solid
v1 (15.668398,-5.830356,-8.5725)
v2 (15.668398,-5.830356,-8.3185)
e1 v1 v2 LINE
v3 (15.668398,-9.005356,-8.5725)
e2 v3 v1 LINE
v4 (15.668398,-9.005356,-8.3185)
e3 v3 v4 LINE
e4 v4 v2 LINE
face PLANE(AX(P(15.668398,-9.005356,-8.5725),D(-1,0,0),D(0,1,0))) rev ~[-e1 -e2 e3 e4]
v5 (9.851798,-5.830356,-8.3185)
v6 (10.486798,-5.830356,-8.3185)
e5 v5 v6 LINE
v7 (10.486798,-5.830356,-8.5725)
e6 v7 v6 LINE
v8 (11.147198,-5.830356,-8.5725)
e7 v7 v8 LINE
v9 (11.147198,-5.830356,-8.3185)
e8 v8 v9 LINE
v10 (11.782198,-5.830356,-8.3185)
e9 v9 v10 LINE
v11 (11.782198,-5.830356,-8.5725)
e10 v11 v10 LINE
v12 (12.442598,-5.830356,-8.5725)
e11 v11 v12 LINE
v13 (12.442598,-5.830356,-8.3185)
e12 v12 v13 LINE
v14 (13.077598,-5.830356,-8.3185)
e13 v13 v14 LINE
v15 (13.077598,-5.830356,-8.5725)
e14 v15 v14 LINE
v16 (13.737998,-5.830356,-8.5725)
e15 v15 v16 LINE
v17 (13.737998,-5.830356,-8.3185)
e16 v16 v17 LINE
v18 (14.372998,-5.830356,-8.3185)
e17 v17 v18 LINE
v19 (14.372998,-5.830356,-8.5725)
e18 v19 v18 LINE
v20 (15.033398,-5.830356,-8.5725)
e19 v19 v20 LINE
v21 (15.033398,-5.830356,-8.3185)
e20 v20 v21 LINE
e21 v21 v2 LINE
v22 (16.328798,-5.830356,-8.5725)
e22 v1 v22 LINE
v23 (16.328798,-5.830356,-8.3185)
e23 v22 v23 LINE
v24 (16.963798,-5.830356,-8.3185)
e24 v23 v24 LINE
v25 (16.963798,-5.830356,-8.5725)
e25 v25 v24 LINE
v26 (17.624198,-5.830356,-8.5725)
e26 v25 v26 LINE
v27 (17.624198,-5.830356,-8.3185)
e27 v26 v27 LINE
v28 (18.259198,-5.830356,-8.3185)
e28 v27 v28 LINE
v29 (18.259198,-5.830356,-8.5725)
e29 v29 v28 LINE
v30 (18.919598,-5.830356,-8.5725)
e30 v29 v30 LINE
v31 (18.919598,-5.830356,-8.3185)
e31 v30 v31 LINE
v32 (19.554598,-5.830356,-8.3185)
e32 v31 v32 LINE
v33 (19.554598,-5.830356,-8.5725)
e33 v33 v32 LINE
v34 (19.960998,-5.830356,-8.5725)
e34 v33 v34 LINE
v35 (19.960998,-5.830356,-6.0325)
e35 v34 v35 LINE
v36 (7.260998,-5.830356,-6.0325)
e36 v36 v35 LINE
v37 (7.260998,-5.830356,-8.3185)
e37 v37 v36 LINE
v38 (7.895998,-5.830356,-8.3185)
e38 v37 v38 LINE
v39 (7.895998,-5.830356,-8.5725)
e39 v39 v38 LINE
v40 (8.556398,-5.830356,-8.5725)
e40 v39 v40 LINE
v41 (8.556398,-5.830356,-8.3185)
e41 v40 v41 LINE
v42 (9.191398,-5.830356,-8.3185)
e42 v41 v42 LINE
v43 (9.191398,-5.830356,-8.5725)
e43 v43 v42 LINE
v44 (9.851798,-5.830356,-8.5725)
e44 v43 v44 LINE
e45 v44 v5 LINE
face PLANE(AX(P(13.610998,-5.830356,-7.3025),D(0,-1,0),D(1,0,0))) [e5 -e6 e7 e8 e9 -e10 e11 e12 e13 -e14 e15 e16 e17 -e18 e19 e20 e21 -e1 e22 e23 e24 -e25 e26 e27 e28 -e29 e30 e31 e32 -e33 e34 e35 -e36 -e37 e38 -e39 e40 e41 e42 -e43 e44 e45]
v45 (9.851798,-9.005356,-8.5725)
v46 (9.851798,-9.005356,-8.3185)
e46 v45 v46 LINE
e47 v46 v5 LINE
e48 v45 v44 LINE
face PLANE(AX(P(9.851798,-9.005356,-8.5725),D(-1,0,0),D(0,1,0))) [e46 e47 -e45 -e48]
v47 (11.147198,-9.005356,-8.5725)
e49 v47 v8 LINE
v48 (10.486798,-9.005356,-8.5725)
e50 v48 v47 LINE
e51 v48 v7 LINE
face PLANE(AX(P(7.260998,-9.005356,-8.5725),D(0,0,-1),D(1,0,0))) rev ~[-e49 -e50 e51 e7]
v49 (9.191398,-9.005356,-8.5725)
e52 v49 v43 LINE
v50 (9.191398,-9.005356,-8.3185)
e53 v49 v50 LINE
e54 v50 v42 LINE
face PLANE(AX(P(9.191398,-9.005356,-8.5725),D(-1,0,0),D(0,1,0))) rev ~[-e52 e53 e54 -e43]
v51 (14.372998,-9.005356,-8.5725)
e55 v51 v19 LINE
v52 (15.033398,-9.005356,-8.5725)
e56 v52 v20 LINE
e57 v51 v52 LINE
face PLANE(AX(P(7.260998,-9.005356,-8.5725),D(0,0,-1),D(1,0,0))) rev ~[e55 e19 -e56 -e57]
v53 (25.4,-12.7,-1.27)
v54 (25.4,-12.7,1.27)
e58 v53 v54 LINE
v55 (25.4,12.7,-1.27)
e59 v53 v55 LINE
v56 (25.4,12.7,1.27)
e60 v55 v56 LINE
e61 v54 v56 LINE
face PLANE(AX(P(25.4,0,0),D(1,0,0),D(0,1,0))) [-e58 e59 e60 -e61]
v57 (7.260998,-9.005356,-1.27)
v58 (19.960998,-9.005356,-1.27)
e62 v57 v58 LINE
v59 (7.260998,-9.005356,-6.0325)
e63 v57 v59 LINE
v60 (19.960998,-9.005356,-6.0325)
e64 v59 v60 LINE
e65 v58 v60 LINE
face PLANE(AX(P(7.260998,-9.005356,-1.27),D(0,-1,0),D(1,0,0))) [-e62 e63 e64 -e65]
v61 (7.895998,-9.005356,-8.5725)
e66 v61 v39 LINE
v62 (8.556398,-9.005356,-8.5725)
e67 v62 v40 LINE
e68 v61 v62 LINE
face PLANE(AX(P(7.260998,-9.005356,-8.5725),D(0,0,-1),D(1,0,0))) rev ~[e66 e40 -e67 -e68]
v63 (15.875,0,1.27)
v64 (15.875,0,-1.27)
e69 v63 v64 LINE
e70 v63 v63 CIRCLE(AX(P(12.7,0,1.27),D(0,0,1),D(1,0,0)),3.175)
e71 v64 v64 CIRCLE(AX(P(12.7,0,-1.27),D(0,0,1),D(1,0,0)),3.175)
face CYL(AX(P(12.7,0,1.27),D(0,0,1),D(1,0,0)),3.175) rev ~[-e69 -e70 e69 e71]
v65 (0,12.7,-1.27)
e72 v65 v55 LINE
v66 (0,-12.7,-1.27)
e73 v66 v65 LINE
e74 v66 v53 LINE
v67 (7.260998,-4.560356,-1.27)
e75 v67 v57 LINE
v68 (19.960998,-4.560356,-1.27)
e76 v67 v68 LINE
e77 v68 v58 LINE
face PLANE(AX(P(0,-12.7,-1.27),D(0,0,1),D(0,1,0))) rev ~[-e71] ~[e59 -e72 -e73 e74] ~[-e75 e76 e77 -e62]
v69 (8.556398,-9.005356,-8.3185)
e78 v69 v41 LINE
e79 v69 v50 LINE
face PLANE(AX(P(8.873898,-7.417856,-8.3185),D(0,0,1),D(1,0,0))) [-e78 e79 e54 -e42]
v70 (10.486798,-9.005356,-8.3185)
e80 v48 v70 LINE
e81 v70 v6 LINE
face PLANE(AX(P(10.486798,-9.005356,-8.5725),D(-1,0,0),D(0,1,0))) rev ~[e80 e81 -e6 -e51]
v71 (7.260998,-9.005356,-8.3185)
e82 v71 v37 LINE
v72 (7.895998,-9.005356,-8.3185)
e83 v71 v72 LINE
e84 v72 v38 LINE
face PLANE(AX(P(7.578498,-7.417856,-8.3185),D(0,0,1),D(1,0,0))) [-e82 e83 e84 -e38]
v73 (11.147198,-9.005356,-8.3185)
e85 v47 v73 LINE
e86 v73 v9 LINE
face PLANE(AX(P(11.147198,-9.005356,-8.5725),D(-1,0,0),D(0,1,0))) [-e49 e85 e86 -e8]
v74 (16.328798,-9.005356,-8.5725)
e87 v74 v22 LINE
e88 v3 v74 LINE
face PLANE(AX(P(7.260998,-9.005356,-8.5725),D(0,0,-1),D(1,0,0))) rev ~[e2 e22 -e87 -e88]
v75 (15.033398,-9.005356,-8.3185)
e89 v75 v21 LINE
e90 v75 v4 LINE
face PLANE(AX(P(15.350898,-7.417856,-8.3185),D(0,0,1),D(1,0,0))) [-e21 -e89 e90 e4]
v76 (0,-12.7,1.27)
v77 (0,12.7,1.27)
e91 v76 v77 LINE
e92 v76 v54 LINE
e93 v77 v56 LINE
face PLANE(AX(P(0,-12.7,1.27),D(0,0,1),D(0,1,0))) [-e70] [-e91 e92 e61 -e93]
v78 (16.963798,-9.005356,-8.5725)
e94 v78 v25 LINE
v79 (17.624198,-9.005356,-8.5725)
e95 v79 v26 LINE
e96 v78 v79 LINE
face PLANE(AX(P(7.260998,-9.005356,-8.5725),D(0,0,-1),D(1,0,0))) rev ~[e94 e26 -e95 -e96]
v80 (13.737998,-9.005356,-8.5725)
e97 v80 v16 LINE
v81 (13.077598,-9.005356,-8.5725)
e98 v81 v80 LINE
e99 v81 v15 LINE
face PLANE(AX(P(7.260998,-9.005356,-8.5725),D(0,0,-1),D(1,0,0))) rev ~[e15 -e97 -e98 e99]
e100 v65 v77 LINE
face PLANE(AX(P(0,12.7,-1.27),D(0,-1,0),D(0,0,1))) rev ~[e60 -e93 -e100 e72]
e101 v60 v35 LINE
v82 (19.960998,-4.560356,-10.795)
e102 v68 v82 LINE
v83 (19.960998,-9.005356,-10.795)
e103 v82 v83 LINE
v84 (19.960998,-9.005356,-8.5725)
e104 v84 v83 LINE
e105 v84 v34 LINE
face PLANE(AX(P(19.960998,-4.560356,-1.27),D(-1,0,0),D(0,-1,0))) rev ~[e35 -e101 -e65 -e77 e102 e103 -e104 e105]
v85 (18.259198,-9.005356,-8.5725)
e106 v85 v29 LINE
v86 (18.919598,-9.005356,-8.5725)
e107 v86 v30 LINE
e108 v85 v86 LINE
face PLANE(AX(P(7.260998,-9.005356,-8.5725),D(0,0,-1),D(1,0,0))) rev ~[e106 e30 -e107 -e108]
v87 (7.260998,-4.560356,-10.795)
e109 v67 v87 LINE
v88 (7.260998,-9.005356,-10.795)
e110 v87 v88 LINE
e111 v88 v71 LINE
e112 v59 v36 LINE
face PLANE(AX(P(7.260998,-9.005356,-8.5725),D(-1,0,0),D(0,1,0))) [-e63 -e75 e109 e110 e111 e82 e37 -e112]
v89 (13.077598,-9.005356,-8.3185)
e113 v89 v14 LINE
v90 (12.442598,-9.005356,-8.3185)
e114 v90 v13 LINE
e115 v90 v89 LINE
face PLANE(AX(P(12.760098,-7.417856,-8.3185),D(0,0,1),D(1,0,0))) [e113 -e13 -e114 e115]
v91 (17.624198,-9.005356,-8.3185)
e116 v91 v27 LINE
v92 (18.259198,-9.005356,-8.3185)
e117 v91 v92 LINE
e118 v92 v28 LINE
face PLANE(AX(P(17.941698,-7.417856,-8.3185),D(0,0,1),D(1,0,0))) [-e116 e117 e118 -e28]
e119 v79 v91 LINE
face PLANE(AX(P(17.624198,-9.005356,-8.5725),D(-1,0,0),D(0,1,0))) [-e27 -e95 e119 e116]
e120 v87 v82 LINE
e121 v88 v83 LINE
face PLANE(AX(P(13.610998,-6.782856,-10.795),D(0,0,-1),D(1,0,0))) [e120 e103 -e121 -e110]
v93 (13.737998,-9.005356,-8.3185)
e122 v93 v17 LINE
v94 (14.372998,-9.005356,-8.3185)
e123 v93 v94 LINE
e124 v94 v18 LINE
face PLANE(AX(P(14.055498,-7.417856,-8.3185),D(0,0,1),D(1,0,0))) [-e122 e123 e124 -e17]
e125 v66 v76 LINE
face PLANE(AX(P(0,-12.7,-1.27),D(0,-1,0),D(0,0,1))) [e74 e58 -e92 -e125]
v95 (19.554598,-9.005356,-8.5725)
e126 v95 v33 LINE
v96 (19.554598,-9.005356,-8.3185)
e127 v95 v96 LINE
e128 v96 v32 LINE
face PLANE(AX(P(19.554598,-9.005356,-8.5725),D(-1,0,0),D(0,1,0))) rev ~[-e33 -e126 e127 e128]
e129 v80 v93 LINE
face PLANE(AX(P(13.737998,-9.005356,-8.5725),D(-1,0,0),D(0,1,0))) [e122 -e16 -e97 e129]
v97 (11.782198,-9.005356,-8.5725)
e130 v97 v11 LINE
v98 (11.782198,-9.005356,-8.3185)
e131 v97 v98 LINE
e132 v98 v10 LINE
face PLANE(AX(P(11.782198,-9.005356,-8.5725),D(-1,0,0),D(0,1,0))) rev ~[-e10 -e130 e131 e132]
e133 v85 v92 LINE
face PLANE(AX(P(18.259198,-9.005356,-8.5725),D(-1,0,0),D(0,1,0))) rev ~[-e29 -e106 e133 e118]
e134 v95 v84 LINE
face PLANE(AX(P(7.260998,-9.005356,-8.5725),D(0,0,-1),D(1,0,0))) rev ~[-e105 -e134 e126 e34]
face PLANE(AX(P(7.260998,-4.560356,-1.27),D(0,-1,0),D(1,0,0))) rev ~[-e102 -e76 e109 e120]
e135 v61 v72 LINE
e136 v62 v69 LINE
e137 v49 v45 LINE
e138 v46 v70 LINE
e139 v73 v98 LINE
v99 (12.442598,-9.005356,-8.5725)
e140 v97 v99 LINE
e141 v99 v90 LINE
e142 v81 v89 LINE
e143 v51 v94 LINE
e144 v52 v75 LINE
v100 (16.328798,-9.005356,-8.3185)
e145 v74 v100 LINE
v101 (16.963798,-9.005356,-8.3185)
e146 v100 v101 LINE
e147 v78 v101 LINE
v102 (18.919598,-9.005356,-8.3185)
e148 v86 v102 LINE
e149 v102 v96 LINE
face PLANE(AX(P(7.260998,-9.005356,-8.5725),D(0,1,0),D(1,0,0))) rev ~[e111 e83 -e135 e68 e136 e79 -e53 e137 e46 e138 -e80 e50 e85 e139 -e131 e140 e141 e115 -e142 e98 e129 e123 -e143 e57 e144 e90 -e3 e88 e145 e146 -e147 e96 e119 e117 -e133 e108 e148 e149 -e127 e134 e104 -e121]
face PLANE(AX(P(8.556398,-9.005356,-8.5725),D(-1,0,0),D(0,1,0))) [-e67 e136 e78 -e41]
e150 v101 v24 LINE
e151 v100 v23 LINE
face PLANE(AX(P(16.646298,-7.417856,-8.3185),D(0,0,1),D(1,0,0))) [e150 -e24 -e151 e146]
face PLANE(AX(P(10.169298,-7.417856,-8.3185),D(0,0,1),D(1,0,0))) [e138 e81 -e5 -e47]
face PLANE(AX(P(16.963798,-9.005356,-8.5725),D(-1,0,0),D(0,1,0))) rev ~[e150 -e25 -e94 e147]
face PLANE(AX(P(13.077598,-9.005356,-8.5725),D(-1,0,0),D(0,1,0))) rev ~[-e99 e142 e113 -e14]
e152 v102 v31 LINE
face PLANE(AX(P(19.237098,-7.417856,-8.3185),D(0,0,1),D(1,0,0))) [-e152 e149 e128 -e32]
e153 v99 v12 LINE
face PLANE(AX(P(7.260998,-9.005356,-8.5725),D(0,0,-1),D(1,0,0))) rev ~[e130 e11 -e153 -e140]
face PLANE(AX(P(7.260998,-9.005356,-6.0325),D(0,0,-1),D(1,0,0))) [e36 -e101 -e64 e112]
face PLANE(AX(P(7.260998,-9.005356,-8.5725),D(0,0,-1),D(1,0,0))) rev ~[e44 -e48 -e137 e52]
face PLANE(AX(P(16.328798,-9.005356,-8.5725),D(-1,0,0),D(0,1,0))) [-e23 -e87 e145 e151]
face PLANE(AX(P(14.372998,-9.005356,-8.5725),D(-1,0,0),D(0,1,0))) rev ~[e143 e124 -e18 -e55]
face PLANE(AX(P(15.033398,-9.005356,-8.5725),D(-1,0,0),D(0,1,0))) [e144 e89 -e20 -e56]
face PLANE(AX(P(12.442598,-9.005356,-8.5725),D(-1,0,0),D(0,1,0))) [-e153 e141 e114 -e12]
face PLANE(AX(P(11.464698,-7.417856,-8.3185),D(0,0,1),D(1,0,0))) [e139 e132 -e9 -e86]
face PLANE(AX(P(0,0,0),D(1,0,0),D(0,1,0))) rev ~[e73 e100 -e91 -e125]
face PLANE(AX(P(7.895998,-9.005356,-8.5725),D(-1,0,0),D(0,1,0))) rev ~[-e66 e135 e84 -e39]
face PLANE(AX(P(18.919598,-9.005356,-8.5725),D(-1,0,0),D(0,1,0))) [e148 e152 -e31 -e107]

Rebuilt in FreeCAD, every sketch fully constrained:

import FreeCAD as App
import Part
import Sketcher

V = App.Vector
Q = App.Units.Quantity


def add_polygon(sketch, points):
    """Adds a closed chain of lines whose ends are joined by coincident constraints."""
    first, n = sketch.GeometryCount, len(points)
    for a, b in zip(points, points[1:] + points[:1]):
        sketch.addGeometry(Part.LineSegment(App.Vector(*a, 0), App.Vector(*b, 0)), False)
    for i in range(n):
        sketch.addConstraint(Sketcher.Constraint("Coincident", first + i, 2, first + (i + 1) % n, 1))

doc = App.newDocument("Part")
body = doc.addObject("PartDesign::Body", "Body")

sketch1 = body.newObject("Sketcher::SketchObject", "Sketch")
sketch1.AttachmentSupport = (doc.getObject("YZ_Plane"), [""])
sketch1.MapMode = "FlatFace"
add_polygon(sketch1, [(-12.7, 1.3), (-12.7, -1.3), (12.7, -1.3), (12.7, 1.3)])
sketch1.addConstraint(Sketcher.Constraint("Vertical", 0))
sketch1.addConstraint(Sketcher.Constraint("Horizontal", 1))
sketch1.addConstraint(Sketcher.Constraint("Vertical", 2))
sketch1.addConstraint(Sketcher.Constraint("Horizontal", 3))
sketch1.addConstraint(Sketcher.Constraint("Symmetric", 0, 2, 2, 2, -1, 1))
sketch1.addConstraint(Sketcher.Constraint("DistanceX", 1, 1, 1, 2, Q("1 in")))
sketch1.addConstraint(Sketcher.Constraint("DistanceY", 0, 2, 0, 1, Q("0.1 in")))
pad1 = body.newObject("PartDesign::Pad", "Pad")
pad1.Profile = sketch1
pad1.Length = Q("1 in")

sketch2 = body.newObject("Sketcher::SketchObject", "Sketch001")
sketch2.AttachmentSupport = (doc.getObject("XY_Plane"), [""])
sketch2.MapMode = "FlatFace"
sketch2.AttachmentOffset = App.Placement(V(0, 0, 0.05 * 25.4), App.Rotation())
sketch2.addGeometry(Part.Circle(V(12.7, 0, 0), V(0, 0, 1), 3.2), False)
sketch2.addConstraint(Sketcher.Constraint("PointOnObject", 0, 3, -1))
sketch2.addConstraint(Sketcher.Constraint("Diameter", 0, Q("0.25 in")))
sketch2.addConstraint(Sketcher.Constraint("DistanceX", -1, 1, 0, 3, Q("0.5 in")))
pocket1 = body.newObject("PartDesign::Pocket", "Pocket")
pocket1.Profile = sketch2
pocket1.Length = Q("1 in")

sketch3 = body.newObject("Sketcher::SketchObject", "Sketch002")
sketch3.AttachmentSupport = (doc.getObject("XY_Plane"), [""])
sketch3.MapMode = "FlatFace"
sketch3.AttachmentOffset = App.Placement(V(0, 0, -0.05 * 25.4), App.Rotation())
add_polygon(sketch3, [(7.3, -9), (7.3, -4.6), (20, -4.6), (20, -9)])
sketch3.addConstraint(Sketcher.Constraint("Vertical", 0))
sketch3.addConstraint(Sketcher.Constraint("Horizontal", 1))
sketch3.addConstraint(Sketcher.Constraint("Vertical", 2))
sketch3.addConstraint(Sketcher.Constraint("Horizontal", 3))
sketch3.addConstraint(Sketcher.Constraint("DistanceX", 1, 1, 1, 2, Q("0.5 in")))
sketch3.addConstraint(Sketcher.Constraint("DistanceY", 0, 1, 0, 2, Q("0.175 in")))
sketch3.addConstraint(Sketcher.Constraint("DistanceX", -1, 1, 1, 2, Q("19.960998 mm")))
sketch3.addConstraint(Sketcher.Constraint("DistanceY", 0, 2, -1, 1, Q("4.560356 mm")))
pad2 = body.newObject("PartDesign::Pad", "Pad001")
pad2.Profile = sketch3
pad2.Length = Q("0.375 in")
pad2.Reversed = True

sketch4 = body.newObject("Sketcher::SketchObject", "Sketch003")
sketch4.AttachmentSupport = (doc.getObject("XZ_Plane"), [""])
sketch4.MapMode = "FlatFace"
sketch4.AttachmentOffset = App.Placement(V(0, 0, 9.005356), App.Rotation())
add_polygon(sketch4, [(7.3, -6), (7.3, -8.6), (20, -8.6), (20, -6)])
sketch4.addConstraint(Sketcher.Constraint("Vertical", 0))
sketch4.addConstraint(Sketcher.Constraint("Horizontal", 1))
sketch4.addConstraint(Sketcher.Constraint("Vertical", 2))
sketch4.addConstraint(Sketcher.Constraint("Horizontal", 3))
sketch4.addConstraint(Sketcher.Constraint("DistanceX", 1, 1, 1, 2, Q("0.5 in")))
sketch4.addConstraint(Sketcher.Constraint("DistanceY", 0, 2, 0, 1, Q("0.1 in")))
sketch4.addConstraint(Sketcher.Constraint("DistanceY", 0, 2, -1, 1, Q("0.3375 in")))
sketch4.addConstraint(Sketcher.Constraint("DistanceX", -1, 1, 1, 2, Q("19.960998 mm")))
pocket2 = body.newObject("PartDesign::Pocket", "Pocket001")
pocket2.Profile = sketch4
pocket2.Length = Q("0.125 in")

sketch5 = body.newObject("Sketcher::SketchObject", "Sketch004")
sketch5.AttachmentSupport = (doc.getObject("XY_Plane"), [""])
sketch5.MapMode = "FlatFace"
sketch5.AttachmentOffset = App.Placement(V(0, 0, -0.3375 * 25.4), App.Rotation())
add_polygon(sketch5, [(8.6, -5.8), (8.6, -9), (9.2, -9), (9.2, -5.8)])
add_polygon(sketch5, [(7.3, -5.8), (7.3, -9), (7.9, -9), (7.9, -5.8)])
add_polygon(sketch5, [(9.9, -5.8), (9.9, -9), (10.5, -9), (10.5, -5.8)])
add_polygon(sketch5, [(11.1, -5.8), (11.1, -9), (11.8, -9), (11.8, -5.8)])
add_polygon(sketch5, [(12.4, -5.8), (12.4, -9), (13.1, -9), (13.1, -5.8)])
add_polygon(sketch5, [(13.7, -5.8), (13.7, -9), (14.4, -9), (14.4, -5.8)])
add_polygon(sketch5, [(15, -5.8), (15, -9), (15.7, -9), (15.7, -5.8)])
add_polygon(sketch5, [(16.3, -5.8), (16.3, -9), (17, -9), (17, -5.8)])
add_polygon(sketch5, [(17.6, -5.8), (17.6, -9), (18.3, -9), (18.3, -5.8)])
add_polygon(sketch5, [(18.9, -5.8), (18.9, -9), (19.6, -9), (19.6, -5.8)])
sketch5.addConstraint(Sketcher.Constraint("Vertical", 0))
sketch5.addConstraint(Sketcher.Constraint("Horizontal", 1))
sketch5.addConstraint(Sketcher.Constraint("Vertical", 2))
sketch5.addConstraint(Sketcher.Constraint("Horizontal", 3))
sketch5.addConstraint(Sketcher.Constraint("Vertical", 4))
sketch5.addConstraint(Sketcher.Constraint("Horizontal", 5))
sketch5.addConstraint(Sketcher.Constraint("Vertical", 6))
sketch5.addConstraint(Sketcher.Constraint("Horizontal", 7))
sketch5.addConstraint(Sketcher.Constraint("Vertical", 8))
sketch5.addConstraint(Sketcher.Constraint("Horizontal", 9))
sketch5.addConstraint(Sketcher.Constraint("Vertical", 10))
sketch5.addConstraint(Sketcher.Constraint("Horizontal", 11))
sketch5.addConstraint(Sketcher.Constraint("Vertical", 12))
sketch5.addConstraint(Sketcher.Constraint("Horizontal", 13))
sketch5.addConstraint(Sketcher.Constraint("Vertical", 14))
sketch5.addConstraint(Sketcher.Constraint("Horizontal", 15))
sketch5.addConstraint(Sketcher.Constraint("Vertical", 16))
sketch5.addConstraint(Sketcher.Constraint("Horizontal", 17))
sketch5.addConstraint(Sketcher.Constraint("Vertical", 18))
sketch5.addConstraint(Sketcher.Constraint("Horizontal", 19))
sketch5.addConstraint(Sketcher.Constraint("Vertical", 20))
sketch5.addConstraint(Sketcher.Constraint("Horizontal", 21))
sketch5.addConstraint(Sketcher.Constraint("Vertical", 22))
sketch5.addConstraint(Sketcher.Constraint("Horizontal", 23))
sketch5.addConstraint(Sketcher.Constraint("Vertical", 24))
sketch5.addConstraint(Sketcher.Constraint("Horizontal", 25))
sketch5.addConstraint(Sketcher.Constraint("Vertical", 26))
sketch5.addConstraint(Sketcher.Constraint("Horizontal", 27))
sketch5.addConstraint(Sketcher.Constraint("Vertical", 28))
sketch5.addConstraint(Sketcher.Constraint("Horizontal", 29))
sketch5.addConstraint(Sketcher.Constraint("Vertical", 30))
sketch5.addConstraint(Sketcher.Constraint("Horizontal", 31))
sketch5.addConstraint(Sketcher.Constraint("Vertical", 32))
sketch5.addConstraint(Sketcher.Constraint("Horizontal", 33))
sketch5.addConstraint(Sketcher.Constraint("Vertical", 34))
sketch5.addConstraint(Sketcher.Constraint("Horizontal", 35))
sketch5.addConstraint(Sketcher.Constraint("Vertical", 36))
sketch5.addConstraint(Sketcher.Constraint("Horizontal", 37))
sketch5.addConstraint(Sketcher.Constraint("Vertical", 38))
sketch5.addConstraint(Sketcher.Constraint("Horizontal", 39))
sketch5.addConstraint(Sketcher.Constraint("Horizontal", 1, 2, 4, 2))
sketch5.addConstraint(Sketcher.Constraint("Horizontal", 3, 2, 6, 2))
sketch5.addConstraint(Sketcher.Constraint("Horizontal", 5, 2, 8, 2))
sketch5.addConstraint(Sketcher.Constraint("Horizontal", 7, 2, 10, 2))
sketch5.addConstraint(Sketcher.Constraint("Horizontal", 9, 2, 12, 2))
sketch5.addConstraint(Sketcher.Constraint("Horizontal", 11, 2, 14, 2))
sketch5.addConstraint(Sketcher.Constraint("Horizontal", 13, 2, 16, 2))
sketch5.addConstraint(Sketcher.Constraint("Horizontal", 15, 2, 18, 2))
sketch5.addConstraint(Sketcher.Constraint("Horizontal", 17, 2, 20, 2))
sketch5.addConstraint(Sketcher.Constraint("Horizontal", 19, 2, 22, 2))
sketch5.addConstraint(Sketcher.Constraint("Horizontal", 21, 2, 24, 2))
sketch5.addConstraint(Sketcher.Constraint("Horizontal", 23, 2, 26, 2))
sketch5.addConstraint(Sketcher.Constraint("Horizontal", 25, 2, 28, 2))
sketch5.addConstraint(Sketcher.Constraint("Horizontal", 27, 2, 30, 2))
sketch5.addConstraint(Sketcher.Constraint("Horizontal", 29, 2, 32, 2))
sketch5.addConstraint(Sketcher.Constraint("Horizontal", 31, 2, 34, 2))
sketch5.addConstraint(Sketcher.Constraint("Horizontal", 33, 2, 36, 2))
sketch5.addConstraint(Sketcher.Constraint("Horizontal", 35, 2, 38, 2))
sketch5.addConstraint(Sketcher.Constraint("Equal", 3, 5))
sketch5.addConstraint(Sketcher.Constraint("Equal", 7, 9))
sketch5.addConstraint(Sketcher.Constraint("Equal", 11, 13))
sketch5.addConstraint(Sketcher.Constraint("Equal", 15, 17))
sketch5.addConstraint(Sketcher.Constraint("Equal", 19, 21))
sketch5.addConstraint(Sketcher.Constraint("Equal", 23, 25))
sketch5.addConstraint(Sketcher.Constraint("Equal", 27, 29))
sketch5.addConstraint(Sketcher.Constraint("Equal", 31, 33))
sketch5.addConstraint(Sketcher.Constraint("Equal", 35, 37))
sketch5.addConstraint(Sketcher.Constraint("DistanceX", 1, 1, 1, 2, Q("0.025 in")))
sketch5.addConstraint(Sketcher.Constraint("DistanceY", 0, 2, 0, 1, Q("0.125 in")))
sketch5.addConstraint(Sketcher.Constraint("DistanceX", 4, 2, 0, 2, Q("0.051 in")))
sketch5.addConstraint(Sketcher.Constraint("DistanceX", 1, 2, 8, 2, Q("0.026 in")))
sketch5.addConstraint(Sketcher.Constraint("DistanceX", 9, 2, 12, 2, Q("0.026 in")))
sketch5.addConstraint(Sketcher.Constraint("DistanceX", 13, 2, 16, 2, Q("0.026 in")))
sketch5.addConstraint(Sketcher.Constraint("DistanceX", 17, 2, 20, 2, Q("0.026 in")))
sketch5.addConstraint(Sketcher.Constraint("DistanceX", 21, 2, 24, 2, Q("0.026 in")))
sketch5.addConstraint(Sketcher.Constraint("DistanceX", 25, 2, 28, 2, Q("0.026 in")))
sketch5.addConstraint(Sketcher.Constraint("DistanceX", 29, 2, 32, 2, Q("0.026 in")))
sketch5.addConstraint(Sketcher.Constraint("DistanceX", 33, 2, 36, 2, Q("0.026 in")))
sketch5.addConstraint(Sketcher.Constraint("DistanceX", -1, 1, 21, 2, Q("14.372998 mm")))
sketch5.addConstraint(Sketcher.Constraint("DistanceY", 0, 2, -1, 1, Q("9.005356 mm")))
pad3 = body.newObject("PartDesign::Pad", "Pad002")
pad3.Profile = sketch5
pad3.Length = Q("0.01 in")

doc.recompute()
